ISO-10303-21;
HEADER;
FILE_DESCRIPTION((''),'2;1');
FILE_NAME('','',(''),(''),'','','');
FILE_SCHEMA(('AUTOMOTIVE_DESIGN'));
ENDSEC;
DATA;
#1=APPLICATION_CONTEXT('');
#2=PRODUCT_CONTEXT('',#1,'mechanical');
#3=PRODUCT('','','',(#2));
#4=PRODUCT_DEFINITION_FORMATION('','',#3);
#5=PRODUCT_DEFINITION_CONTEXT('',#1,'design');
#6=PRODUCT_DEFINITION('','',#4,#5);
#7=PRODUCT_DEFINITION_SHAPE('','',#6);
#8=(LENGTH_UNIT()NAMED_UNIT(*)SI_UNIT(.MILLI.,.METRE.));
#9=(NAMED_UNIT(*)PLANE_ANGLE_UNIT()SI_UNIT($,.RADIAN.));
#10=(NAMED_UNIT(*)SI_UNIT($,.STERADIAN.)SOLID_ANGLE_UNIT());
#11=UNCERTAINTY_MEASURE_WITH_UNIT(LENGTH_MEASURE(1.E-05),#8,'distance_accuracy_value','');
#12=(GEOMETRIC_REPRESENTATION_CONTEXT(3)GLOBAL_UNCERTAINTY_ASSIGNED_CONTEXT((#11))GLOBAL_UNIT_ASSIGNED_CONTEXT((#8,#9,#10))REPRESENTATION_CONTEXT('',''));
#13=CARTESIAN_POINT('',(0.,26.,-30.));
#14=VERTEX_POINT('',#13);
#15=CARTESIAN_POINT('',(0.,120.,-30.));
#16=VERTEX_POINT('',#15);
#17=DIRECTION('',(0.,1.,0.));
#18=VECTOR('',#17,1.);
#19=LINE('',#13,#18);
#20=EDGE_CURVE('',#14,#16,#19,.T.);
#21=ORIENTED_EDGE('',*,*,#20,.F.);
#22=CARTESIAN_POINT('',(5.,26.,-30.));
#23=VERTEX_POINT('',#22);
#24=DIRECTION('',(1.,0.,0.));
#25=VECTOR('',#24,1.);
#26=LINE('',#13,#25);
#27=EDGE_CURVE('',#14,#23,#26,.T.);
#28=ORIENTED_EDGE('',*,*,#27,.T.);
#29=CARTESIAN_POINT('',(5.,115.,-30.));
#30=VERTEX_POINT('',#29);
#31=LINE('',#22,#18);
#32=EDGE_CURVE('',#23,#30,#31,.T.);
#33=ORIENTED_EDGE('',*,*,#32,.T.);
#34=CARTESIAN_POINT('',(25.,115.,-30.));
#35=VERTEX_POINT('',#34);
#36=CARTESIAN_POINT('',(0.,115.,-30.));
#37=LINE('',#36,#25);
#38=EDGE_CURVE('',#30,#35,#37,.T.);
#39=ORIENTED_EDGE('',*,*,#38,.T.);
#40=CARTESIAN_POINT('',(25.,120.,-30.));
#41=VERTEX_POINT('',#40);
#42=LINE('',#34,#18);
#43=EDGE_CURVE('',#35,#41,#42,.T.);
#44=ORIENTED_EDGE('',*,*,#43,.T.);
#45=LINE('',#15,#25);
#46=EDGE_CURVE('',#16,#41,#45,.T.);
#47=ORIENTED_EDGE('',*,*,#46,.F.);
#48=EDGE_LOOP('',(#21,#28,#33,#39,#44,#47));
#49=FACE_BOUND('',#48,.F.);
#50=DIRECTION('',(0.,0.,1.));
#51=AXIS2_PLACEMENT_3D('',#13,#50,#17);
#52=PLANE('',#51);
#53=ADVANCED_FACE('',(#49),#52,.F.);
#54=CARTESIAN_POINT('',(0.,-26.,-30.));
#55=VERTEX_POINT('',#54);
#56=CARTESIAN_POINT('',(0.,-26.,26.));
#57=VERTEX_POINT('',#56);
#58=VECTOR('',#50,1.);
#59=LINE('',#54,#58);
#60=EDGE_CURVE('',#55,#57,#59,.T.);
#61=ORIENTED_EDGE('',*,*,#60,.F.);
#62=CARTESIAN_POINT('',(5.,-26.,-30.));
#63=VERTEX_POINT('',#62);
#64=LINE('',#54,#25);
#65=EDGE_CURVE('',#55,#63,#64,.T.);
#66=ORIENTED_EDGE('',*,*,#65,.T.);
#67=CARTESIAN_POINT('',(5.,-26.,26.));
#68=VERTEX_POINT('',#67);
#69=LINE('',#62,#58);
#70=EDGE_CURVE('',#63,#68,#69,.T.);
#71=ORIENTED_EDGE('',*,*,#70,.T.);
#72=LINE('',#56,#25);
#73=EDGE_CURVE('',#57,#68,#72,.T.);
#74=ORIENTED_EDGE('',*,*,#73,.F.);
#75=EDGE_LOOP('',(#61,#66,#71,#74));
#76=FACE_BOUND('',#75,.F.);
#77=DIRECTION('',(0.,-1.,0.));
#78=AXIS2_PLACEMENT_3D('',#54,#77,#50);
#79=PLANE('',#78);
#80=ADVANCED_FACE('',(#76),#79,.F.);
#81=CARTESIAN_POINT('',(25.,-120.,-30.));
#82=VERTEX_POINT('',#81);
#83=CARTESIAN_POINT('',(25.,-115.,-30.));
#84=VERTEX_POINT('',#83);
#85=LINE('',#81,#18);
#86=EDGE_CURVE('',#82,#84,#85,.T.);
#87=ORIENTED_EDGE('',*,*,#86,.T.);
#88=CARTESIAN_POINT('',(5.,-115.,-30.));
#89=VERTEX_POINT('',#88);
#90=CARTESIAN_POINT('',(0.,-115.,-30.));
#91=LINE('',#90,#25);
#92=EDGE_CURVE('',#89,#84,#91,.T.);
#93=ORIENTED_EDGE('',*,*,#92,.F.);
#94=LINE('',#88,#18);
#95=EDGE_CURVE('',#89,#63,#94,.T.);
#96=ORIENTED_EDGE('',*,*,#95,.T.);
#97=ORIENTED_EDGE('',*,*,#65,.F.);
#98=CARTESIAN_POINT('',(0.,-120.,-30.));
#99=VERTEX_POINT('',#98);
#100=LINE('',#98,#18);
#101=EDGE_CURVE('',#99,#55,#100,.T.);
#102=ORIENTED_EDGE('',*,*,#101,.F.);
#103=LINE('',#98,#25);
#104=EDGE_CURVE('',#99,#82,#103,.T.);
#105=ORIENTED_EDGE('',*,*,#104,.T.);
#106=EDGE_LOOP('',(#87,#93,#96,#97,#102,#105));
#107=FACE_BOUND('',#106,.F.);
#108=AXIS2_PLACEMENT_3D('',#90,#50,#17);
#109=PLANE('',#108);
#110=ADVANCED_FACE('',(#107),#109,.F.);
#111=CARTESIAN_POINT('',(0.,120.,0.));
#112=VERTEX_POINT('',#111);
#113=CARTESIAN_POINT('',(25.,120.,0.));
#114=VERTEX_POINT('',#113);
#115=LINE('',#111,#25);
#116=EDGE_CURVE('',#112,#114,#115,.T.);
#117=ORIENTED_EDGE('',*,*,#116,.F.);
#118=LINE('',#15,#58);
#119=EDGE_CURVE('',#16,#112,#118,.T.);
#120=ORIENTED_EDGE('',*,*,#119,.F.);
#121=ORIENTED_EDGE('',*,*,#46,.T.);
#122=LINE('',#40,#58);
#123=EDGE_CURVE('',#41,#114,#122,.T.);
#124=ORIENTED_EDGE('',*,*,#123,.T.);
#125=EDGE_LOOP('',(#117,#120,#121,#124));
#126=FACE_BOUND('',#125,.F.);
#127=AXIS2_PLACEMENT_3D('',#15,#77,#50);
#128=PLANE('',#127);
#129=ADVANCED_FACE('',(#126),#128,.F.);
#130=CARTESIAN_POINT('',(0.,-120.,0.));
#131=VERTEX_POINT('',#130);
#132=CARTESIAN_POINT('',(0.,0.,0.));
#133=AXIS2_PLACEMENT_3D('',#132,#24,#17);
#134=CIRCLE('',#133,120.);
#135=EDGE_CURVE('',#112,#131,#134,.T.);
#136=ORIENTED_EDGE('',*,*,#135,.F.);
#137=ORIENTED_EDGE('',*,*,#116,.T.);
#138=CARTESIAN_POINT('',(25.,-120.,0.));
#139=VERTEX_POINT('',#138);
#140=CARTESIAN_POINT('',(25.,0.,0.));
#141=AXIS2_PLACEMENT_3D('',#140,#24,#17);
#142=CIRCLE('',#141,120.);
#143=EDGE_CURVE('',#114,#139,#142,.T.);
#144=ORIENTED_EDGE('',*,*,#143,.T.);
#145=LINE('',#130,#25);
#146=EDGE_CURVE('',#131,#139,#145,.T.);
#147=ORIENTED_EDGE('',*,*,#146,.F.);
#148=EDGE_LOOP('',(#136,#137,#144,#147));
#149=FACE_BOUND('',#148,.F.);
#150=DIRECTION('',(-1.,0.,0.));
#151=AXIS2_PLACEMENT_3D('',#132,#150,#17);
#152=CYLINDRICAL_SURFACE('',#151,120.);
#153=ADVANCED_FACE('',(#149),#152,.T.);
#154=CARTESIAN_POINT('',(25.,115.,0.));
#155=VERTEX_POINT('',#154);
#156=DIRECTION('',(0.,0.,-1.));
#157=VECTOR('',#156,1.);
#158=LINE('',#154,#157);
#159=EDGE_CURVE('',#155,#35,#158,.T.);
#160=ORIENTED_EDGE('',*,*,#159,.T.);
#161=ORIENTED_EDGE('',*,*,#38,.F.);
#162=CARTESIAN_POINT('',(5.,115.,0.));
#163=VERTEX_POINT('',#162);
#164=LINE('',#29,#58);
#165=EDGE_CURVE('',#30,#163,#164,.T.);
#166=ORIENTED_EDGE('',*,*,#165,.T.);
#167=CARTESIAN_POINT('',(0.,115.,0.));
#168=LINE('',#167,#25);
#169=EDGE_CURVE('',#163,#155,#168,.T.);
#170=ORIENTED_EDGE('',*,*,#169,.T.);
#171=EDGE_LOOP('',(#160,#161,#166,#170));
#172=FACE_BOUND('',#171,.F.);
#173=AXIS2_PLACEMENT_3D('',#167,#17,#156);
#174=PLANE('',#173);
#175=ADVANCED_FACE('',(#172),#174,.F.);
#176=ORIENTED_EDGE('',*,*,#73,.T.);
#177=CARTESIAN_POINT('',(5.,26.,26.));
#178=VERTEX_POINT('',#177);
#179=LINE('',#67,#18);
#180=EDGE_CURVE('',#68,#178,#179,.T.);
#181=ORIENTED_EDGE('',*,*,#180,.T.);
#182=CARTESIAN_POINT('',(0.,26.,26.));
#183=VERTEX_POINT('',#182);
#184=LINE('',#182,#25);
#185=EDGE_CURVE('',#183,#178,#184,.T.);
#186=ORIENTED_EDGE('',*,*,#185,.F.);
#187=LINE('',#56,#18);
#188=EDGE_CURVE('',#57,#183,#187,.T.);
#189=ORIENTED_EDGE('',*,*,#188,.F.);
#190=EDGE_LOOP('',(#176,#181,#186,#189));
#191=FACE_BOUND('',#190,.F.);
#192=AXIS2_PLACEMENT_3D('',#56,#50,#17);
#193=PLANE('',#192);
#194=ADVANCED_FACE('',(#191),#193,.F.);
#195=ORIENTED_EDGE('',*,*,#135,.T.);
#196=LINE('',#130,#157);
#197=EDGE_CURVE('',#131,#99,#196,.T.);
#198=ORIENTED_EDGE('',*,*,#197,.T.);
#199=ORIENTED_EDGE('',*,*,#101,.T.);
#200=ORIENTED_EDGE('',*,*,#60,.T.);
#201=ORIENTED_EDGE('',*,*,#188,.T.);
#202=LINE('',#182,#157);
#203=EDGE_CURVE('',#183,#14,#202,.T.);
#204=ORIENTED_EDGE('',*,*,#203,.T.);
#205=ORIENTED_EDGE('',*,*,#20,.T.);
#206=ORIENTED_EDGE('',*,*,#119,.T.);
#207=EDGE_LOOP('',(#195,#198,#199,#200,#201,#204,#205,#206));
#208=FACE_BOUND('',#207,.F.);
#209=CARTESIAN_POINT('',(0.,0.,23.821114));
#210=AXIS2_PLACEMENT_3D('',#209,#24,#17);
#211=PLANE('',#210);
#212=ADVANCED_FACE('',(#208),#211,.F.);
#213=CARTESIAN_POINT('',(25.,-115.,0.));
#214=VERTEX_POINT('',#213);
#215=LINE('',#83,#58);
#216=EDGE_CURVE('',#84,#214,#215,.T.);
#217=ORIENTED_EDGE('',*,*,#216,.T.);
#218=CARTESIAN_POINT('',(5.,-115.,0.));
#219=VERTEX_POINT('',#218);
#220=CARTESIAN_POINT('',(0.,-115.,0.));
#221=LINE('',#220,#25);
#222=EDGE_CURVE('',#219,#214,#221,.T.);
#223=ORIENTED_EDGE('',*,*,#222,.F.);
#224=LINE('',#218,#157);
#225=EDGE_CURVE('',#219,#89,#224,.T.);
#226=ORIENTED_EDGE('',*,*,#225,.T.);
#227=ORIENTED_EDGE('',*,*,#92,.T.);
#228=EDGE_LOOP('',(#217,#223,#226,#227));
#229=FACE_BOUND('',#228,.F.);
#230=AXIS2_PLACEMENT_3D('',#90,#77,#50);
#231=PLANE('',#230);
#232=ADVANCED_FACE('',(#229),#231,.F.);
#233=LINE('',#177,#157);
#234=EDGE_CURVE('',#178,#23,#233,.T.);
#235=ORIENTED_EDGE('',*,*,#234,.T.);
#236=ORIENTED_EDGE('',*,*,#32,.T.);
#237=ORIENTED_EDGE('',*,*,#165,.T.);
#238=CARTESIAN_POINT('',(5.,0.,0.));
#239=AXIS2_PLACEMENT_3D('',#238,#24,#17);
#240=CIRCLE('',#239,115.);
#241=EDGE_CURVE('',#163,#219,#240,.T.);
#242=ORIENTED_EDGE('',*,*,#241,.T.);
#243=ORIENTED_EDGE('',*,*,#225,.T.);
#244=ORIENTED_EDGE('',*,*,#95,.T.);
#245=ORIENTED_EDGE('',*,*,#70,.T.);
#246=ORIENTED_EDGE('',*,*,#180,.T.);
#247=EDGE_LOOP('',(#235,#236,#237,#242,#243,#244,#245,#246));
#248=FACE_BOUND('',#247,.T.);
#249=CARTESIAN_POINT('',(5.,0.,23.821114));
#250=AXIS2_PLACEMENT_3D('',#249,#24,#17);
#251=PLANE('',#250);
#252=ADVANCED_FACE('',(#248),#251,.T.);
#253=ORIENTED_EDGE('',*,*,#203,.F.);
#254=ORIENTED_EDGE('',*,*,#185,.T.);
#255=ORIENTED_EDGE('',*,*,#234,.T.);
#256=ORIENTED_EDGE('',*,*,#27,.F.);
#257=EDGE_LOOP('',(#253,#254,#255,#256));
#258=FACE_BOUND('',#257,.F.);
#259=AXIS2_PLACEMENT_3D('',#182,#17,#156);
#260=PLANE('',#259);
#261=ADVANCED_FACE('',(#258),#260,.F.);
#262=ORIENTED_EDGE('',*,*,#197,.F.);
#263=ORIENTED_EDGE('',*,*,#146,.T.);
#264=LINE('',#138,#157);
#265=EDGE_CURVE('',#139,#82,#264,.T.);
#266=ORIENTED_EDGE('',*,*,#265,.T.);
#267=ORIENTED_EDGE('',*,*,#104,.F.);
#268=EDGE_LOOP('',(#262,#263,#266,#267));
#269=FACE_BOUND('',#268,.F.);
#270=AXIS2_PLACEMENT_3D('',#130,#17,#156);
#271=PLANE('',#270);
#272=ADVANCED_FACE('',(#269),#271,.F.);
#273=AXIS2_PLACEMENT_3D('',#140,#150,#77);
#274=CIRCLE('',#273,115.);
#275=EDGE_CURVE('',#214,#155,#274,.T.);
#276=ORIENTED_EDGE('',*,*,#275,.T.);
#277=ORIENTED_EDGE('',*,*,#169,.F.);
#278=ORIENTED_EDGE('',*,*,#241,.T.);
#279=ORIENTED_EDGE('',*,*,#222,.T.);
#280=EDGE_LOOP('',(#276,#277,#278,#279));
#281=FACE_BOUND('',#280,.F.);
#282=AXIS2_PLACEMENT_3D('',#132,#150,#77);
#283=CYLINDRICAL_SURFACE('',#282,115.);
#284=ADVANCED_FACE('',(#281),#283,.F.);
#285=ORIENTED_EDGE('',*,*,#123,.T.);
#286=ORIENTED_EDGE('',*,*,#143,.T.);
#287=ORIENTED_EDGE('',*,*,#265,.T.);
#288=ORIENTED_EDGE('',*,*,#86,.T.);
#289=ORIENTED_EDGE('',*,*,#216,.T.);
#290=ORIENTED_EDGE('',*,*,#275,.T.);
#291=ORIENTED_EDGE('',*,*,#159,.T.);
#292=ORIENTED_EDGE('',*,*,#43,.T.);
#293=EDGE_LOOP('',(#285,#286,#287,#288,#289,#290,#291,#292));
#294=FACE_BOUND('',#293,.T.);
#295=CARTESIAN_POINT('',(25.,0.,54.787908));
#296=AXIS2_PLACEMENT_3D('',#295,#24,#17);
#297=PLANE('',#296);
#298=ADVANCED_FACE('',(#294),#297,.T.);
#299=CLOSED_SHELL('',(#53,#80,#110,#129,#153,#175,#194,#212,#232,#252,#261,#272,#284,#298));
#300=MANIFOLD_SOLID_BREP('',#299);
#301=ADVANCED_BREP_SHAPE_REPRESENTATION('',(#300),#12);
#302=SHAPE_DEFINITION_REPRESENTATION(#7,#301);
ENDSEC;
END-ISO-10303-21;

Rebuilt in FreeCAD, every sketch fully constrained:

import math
import FreeCAD as App
import Part
import Sketcher
Q = App.Units.Quantity

doc = App.newDocument("Part")
body = doc.addObject("PartDesign::Body", "Body")

# Sketch on YZ plane
sketch1 = body.newObject("Sketcher::SketchObject", "Sketch")
sketch1.AttachmentSupport = (doc.getObject("YZ_Plane"), [""])
sketch1.MapMode = "FlatFace"
sketch1.addGeometry([
    Part.LineSegment(App.Vector(115, -30, 0), App.Vector(115, 0, 0)),  # 0
    Part.ArcOfCircle(Part.Circle(App.Vector(0, 0, 0), App.Vector(0, 0, 1), 115), math.radians(0), math.radians(180)),  # 1
    Part.LineSegment(App.Vector(-115, 0, 0), App.Vector(-115, -30, 0)),  # 2
    Part.LineSegment(App.Vector(-115, -30, 0), App.Vector(-26, -30, 0)),  # 3
    Part.LineSegment(App.Vector(-26, -30, 0), App.Vector(-26, 26, 0)),  # 4
    Part.LineSegment(App.Vector(-26, 26, 0), App.Vector(26, 26, 0)),  # 5
    Part.LineSegment(App.Vector(26, 26, 0), App.Vector(26, -30, 0)),  # 6
    Part.LineSegment(App.Vector(26, -30, 0), App.Vector(115, -30, 0)),  # 7
], False)
sketch1.addConstraint([
    Sketcher.Constraint("Tangent", 0, 2, 1, 1),
    Sketcher.Constraint("Tangent", 1, 2, 2, 1),
    Sketcher.Constraint("Coincident", 2, 2, 3, 1),
    Sketcher.Constraint("Coincident", 3, 2, 4, 1),
    Sketcher.Constraint("Coincident", 4, 2, 5, 1),
    Sketcher.Constraint("Coincident", 5, 2, 6, 1),
    Sketcher.Constraint("Coincident", 6, 2, 7, 1),
    Sketcher.Constraint("Coincident", 7, 2, 0, 1),
    Sketcher.Constraint("Vertical", 0),
    Sketcher.Constraint("Vertical", 2),
    Sketcher.Constraint("Horizontal", 3),
    Sketcher.Constraint("Vertical", 4),
    Sketcher.Constraint("Horizontal", 5),
    Sketcher.Constraint("Vertical", 6),
    Sketcher.Constraint("Horizontal", 7),
    Sketcher.Constraint("Coincident", 1, 3, -1, 1),
    Sketcher.Constraint("Symmetric", 3, 2, 6, 2, -2),
    Sketcher.Constraint("Radius", 1, Q("115 mm")),
    Sketcher.Constraint("DistanceX", 3, 1, 3, 2, Q("89 mm")),
    Sketcher.Constraint("DistanceY", 0, 1, 0, 2, Q("30 mm")),
    Sketcher.Constraint("DistanceY", 4, 1, 4, 2, Q("56 mm")),
])
pad1 = body.newObject("PartDesign::Pad", "Pad")
pad1.Profile = sketch1
pad1.Length = 5

# Sketch on YZ plane
sketch2 = body.newObject("Sketcher::SketchObject", "Sketch001")
sketch2.AttachmentSupport = (doc.getObject("YZ_Plane"), [""])
sketch2.MapMode = "FlatFace"
sketch2.addGeometry([
    Part.ArcOfCircle(Part.Circle(App.Vector(0, 0, 0), App.Vector(0, 0, 1), 115), math.radians(0), math.radians(180)),  # 0
    Part.LineSegment(App.Vector(115, 0, 0), App.Vector(115, -30, 0)),  # 1
    Part.LineSegment(App.Vector(115, -30, 0), App.Vector(120, -30, 0)),  # 2
    Part.LineSegment(App.Vector(120, -30, 0), App.Vector(120, 0, 0)),  # 3
    Part.ArcOfCircle(Part.Circle(App.Vector(0, 0, 0), App.Vector(0, 0, 1), 120), math.radians(0), math.radians(180)),  # 4
    Part.LineSegment(App.Vector(-120, 0, 0), App.Vector(-120, -30, 0)),  # 5
    Part.LineSegment(App.Vector(-120, -30, 0), App.Vector(-115, -30, 0)),  # 6
    Part.LineSegment(App.Vector(-115, -30, 0), App.Vector(-115, 0, 0)),  # 7
], False)
sketch2.addConstraint([
    Sketcher.Constraint("Tangent", 0, 1, 1, 1),
    Sketcher.Constraint("Coincident", 1, 2, 2, 1),
    Sketcher.Constraint("Coincident", 2, 2, 3, 1),
    Sketcher.Constraint("Tangent", 3, 2, 4, 1),
    Sketcher.Constraint("Tangent", 4, 2, 5, 1),
    Sketcher.Constraint("Coincident", 5, 2, 6, 1),
    Sketcher.Constraint("Coincident", 6, 2, 7, 1),
    Sketcher.Constraint("Tangent", 7, 2, 0, 2),
    Sketcher.Constraint("Vertical", 1),
    Sketcher.Constraint("Horizontal", 2),
    Sketcher.Constraint("Vertical", 3),
    Sketcher.Constraint("Vertical", 5),
    Sketcher.Constraint("Horizontal", 6),
    Sketcher.Constraint("Vertical", 7),
    Sketcher.Constraint("Coincident", 0, 3, -1, 1),
    Sketcher.Constraint("Coincident", 4, 3, -1, 1),
    Sketcher.Constraint("Horizontal", 2, 2, 5, 2),
    Sketcher.Constraint("Radius", 0, Q("115 mm")),
    Sketcher.Constraint("Radius", 4, Q("120 mm")),
    Sketcher.Constraint("DistanceY", 1, 2, 1, 1, Q("30 mm")),
])
pad2 = body.newObject("PartDesign::Pad", "Pad001")
pad2.Profile = sketch2
pad2.Length = 25

doc.recompute()
